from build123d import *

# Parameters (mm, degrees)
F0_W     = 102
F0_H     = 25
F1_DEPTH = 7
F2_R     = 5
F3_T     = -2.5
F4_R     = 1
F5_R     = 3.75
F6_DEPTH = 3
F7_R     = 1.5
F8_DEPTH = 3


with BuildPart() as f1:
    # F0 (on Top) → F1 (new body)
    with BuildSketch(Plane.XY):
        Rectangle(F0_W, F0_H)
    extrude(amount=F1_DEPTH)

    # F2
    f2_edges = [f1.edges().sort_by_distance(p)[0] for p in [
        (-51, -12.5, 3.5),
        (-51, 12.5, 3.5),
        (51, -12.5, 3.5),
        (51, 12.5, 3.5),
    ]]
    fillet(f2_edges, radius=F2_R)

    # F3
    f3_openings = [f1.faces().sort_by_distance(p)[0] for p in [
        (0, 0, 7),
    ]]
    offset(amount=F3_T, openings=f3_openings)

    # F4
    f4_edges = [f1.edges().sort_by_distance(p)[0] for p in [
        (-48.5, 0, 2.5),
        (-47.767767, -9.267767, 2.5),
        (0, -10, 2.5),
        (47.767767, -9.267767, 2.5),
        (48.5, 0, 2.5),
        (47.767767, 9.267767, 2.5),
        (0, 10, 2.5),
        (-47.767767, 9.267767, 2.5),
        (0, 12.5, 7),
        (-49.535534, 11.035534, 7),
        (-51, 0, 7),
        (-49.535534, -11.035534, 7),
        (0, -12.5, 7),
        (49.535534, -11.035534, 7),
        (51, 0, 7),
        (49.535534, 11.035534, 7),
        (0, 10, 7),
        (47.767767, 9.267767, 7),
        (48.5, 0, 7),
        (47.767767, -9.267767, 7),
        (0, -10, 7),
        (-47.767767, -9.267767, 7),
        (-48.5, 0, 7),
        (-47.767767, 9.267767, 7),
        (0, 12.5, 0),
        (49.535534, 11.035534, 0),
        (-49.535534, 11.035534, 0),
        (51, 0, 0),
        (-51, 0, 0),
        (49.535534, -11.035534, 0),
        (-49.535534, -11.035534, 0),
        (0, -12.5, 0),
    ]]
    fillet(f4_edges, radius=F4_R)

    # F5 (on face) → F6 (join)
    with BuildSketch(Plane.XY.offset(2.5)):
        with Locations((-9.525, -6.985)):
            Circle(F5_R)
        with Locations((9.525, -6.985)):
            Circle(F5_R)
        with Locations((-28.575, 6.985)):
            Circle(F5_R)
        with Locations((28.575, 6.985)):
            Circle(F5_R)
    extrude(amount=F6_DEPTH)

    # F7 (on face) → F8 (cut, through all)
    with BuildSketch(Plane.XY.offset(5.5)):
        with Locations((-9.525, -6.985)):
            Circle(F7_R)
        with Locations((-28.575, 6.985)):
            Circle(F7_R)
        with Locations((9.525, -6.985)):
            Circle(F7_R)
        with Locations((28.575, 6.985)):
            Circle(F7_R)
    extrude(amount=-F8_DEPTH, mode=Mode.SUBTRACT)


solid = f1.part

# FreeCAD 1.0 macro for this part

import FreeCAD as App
import Part
import Sketcher

V = App.Vector


def edges_at(feature, points):
    """Names of the edges that pass closest to the given points."""
    edges = feature.Shape.Edges
    near = lambda p: min(range(len(edges)), key=lambda i: edges[i].distToShape(Part.Vertex(*p))[0])
    return sorted({f"Edge{near(p) + 1}" for p in points})


def faces_at(feature, points):
    """Names of the faces that lie closest to the given points."""
    faces = feature.Shape.Faces
    near = lambda p: min(range(len(faces)), key=lambda i: faces[i].distToShape(Part.Vertex(*p))[0])
    return sorted({f"Face{near(p) + 1}" for p in points})

doc = App.newDocument("Part")
body = doc.addObject("PartDesign::Body", "Body")

# Sketch on XY plane
sketch1 = doc.addObject("Sketcher::SketchObject", "Sketch")
body.addObject(sketch1)
sketch1.AttachmentSupport = (doc.XY_Plane, [""])
sketch1.MapMode = "FlatFace"
sketch1.addGeometry(Part.LineSegment(V(-51, 12.5, 0), V(-51, -12.5, 0)), False)
sketch1.addGeometry(Part.LineSegment(V(-51, -12.5, 0), V(51, -12.5, 0)), False)
sketch1.addGeometry(Part.LineSegment(V(51, -12.5, 0), V(51, 12.5, 0)), False)
sketch1.addGeometry(Part.LineSegment(V(51, 12.5, 0), V(-51, 12.5, 0)), False)
sketch1.addConstraint(Sketcher.Constraint("Coincident", 0, 2, 1, 1))
sketch1.addConstraint(Sketcher.Constraint("Coincident", 1, 2, 2, 1))
sketch1.addConstraint(Sketcher.Constraint("Coincident", 2, 2, 3, 1))
sketch1.addConstraint(Sketcher.Constraint("Coincident", 3, 2, 0, 1))
sketch1.addConstraint(Sketcher.Constraint("Vertical", 0))
sketch1.addConstraint(Sketcher.Constraint("Horizontal", 1))
sketch1.addConstraint(Sketcher.Constraint("Vertical", 2))
sketch1.addConstraint(Sketcher.Constraint("Horizontal", 3))
sketch1.addConstraint(Sketcher.Constraint("Symmetric", 0, 2, 2, 2, -1, 1))
sketch1.addConstraint(Sketcher.Constraint("DistanceX", 1, 1, 1, 2, 102.0))
sketch1.addConstraint(Sketcher.Constraint("DistanceY", 0, 2, 0, 1, 25.0))
pad1 = doc.addObject("PartDesign::Pad", "Pad")
body.addObject(pad1)
pad1.Profile = sketch1
pad1.Length = 7
doc.recompute()

fillet = doc.addObject("PartDesign::Fillet", "Fillet")
body.addObject(fillet)
fillet.Base = (pad1, edges_at(pad1, [
    (-51, -12.5, 3.5),
    (-51, 12.5, 3.5),
    (51, -12.5, 3.5),
    (51, 12.5, 3.5),
]))
fillet.Radius = 5
doc.recompute()

thickness = doc.addObject("PartDesign::Thickness", "Thickness")
body.addObject(thickness)
thickness.Base = (fillet, faces_at(fillet, [(0, 0, 7)]))
thickness.Value = 2.5
thickness.Reversed = True
thickness.Join = "Arc"
doc.recompute()

fillet2 = doc.addObject("PartDesign::Fillet", "Fillet001")
body.addObject(fillet2)
fillet2.Base = (thickness, edges_at(thickness, [
    (-48.5, 0, 2.5),
    (-47.768, -9.268, 2.5),
    (0, -10, 2.5),
    (47.768, -9.268, 2.5),
    (48.5, 0, 2.5),
    (47.768, 9.268, 2.5),
    (0, 10, 2.5),
    (-47.768, 9.268, 2.5),
    (0, 12.5, 7),
    (-49.536, 11.036, 7),
    (-51, 0, 7),
    (-49.536, -11.036, 7),
    (0, -12.5, 7),
    (49.536, -11.036, 7),
    (51, 0, 7),
    (49.536, 11.036, 7),
    (0, 10, 7),
    (47.768, 9.268, 7),
    (48.5, 0, 7),
    (47.768, -9.268, 7),
    (0, -10, 7),
    (-47.768, -9.268, 7),
    (-48.5, 0, 7),
    (-47.768, 9.268, 7),
    (0, 12.5, 0),
    (49.536, 11.036, 0),
    (-49.536, 11.036, 0),
    (51, 0, 0),
    (-51, 0, 0),
    (49.536, -11.036, 0),
    (-49.536, -11.036, 0),
    (0, -12.5, 0),
]))
fillet2.Radius = 1

# Sketch on XY plane
sketch2 = doc.addObject("Sketcher::SketchObject", "Sketch001")
body.addObject(sketch2)
sketch2.AttachmentSupport = (doc.XY_Plane, [""])
sketch2.MapMode = "FlatFace"
sketch2.AttachmentOffset = App.Placement(V(0, 0, 2.5), App.Rotation())
sketch2.addGeometry(Part.Circle(V(-9.525, -6.985, 0), V(0, 0, 1), 3.75), False)
sketch2.addGeometry(Part.Circle(V(9.525, -6.985, 0), V(0, 0, 1), 3.75), False)
sketch2.addGeometry(Part.Circle(V(-28.575, 6.985, 0), V(0, 0, 1), 3.75), False)
sketch2.addGeometry(Part.Circle(V(28.575, 6.985, 0), V(0, 0, 1), 3.75), False)
sketch2.addConstraint(Sketcher.Constraint("Equal", 0, 1))
sketch2.addConstraint(Sketcher.Constraint("Equal", 1, 2))
sketch2.addConstraint(Sketcher.Constraint("Equal", 2, 3))
sketch2.addConstraint(Sketcher.Constraint("Symmetric", 0, 3, 1, 3, -2))
sketch2.addConstraint(Sketcher.Constraint("Symmetric", 2, 3, 3, 3, -2))
sketch2.addConstraint(Sketcher.Constraint("Diameter", 0, 7.5))
sketch2.addConstraint(Sketcher.Constraint("DistanceX", 2, 3, 1, 3, 38.1))
sketch2.addConstraint(Sketcher.Constraint("DistanceX", 0, 3, 1, 3, 19.05))
sketch2.addConstraint(Sketcher.Constraint("DistanceY", 0, 3, 2, 3, 13.97))
sketch2.addConstraint(Sketcher.Constraint("DistanceY", 0, 3, -1, 1, 6.985))
pad2 = doc.addObject("PartDesign::Pad", "Pad001")
body.addObject(pad2)
pad2.Profile = sketch2
pad2.Length = 3

# Sketch on XY plane
sketch3 = doc.addObject("Sketcher::SketchObject", "Sketch002")
body.addObject(sketch3)
sketch3.AttachmentSupport = (doc.XY_Plane, [""])
sketch3.MapMode = "FlatFace"
sketch3.AttachmentOffset = App.Placement(V(0, 0, 5.5), App.Rotation())
sketch3.addGeometry(Part.Circle(V(-9.525, -6.985, 0), V(0, 0, 1), 1.5), False)
sketch3.addGeometry(Part.Circle(V(-28.575, 6.985, 0), V(0, 0, 1), 1.5), False)
sketch3.addGeometry(Part.Circle(V(9.525, -6.985, 0), V(0, 0, 1), 1.5), False)
sketch3.addGeometry(Part.Circle(V(28.575, 6.985, 0), V(0, 0, 1), 1.5), False)
sketch3.addConstraint(Sketcher.Constraint("Equal", 0, 1))
sketch3.addConstraint(Sketcher.Constraint("Equal", 1, 2))
sketch3.addConstraint(Sketcher.Constraint("Equal", 2, 3))
sketch3.addConstraint(Sketcher.Constraint("Symmetric", 0, 3, 2, 3, -2))
sketch3.addConstraint(Sketcher.Constraint("Symmetric", 1, 3, 3, 3, -2))
sketch3.addConstraint(Sketcher.Constraint("Diameter", 0, 3.0))
sketch3.addConstraint(Sketcher.Constraint("DistanceX", 1, 3, 2, 3, 38.1))
sketch3.addConstraint(Sketcher.Constraint("DistanceX", 1, 3, 0, 3, 19.05))
sketch3.addConstraint(Sketcher.Constraint("DistanceY", 0, 3, 1, 3, 13.97))
sketch3.addConstraint(Sketcher.Constraint("DistanceY", 0, 3, -1, 1, 6.985))
pocket1 = doc.addObject("PartDesign::Pocket", "Pocket")
body.addObject(pocket1)
pocket1.Profile = sketch3
pocket1.Length = 3

doc.recompute()
